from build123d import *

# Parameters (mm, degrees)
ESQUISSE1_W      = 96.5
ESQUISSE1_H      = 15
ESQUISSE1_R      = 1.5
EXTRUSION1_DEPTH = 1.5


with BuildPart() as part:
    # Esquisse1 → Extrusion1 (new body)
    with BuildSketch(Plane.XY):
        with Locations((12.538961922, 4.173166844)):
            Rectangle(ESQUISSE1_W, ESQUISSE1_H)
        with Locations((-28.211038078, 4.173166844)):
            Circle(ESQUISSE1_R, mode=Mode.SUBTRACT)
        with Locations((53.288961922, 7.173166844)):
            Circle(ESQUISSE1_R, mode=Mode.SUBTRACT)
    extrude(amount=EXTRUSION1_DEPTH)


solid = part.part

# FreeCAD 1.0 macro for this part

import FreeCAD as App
import Part
import Sketcher

V = App.Vector
Q = App.Units.Quantity


def add_polygon(sketch, points):
    """Adds a closed chain of lines whose ends are joined by coincident constraints."""
    first, n = sketch.GeometryCount, len(points)
    for a, b in zip(points, points[1:] + points[:1]):
        sketch.addGeometry(Part.LineSegment(App.Vector(*a, 0), App.Vector(*b, 0)), False)
    for i in range(n):
        sketch.addConstraint(Sketcher.Constraint("Coincident", first + i, 2, first + (i + 1) % n, 1))

doc = App.newDocument("Part")
body = doc.addObject("PartDesign::Body", "Body")

# Sketch on XY plane
sketch1 = body.newObject("Sketcher::SketchObject", "Sketch")
sketch1.AttachmentSupport = (doc.getObject("XY_Plane"), [""])
sketch1.MapMode = "FlatFace"
add_polygon(sketch1, [(-35.7, 11.7), (-35.7, -3.3), (60.8, -3.3), (60.8, 11.7)])  # lines 0-3
sketch1.addGeometry(Part.Circle(V(-28.2, 4.2, 0), V(0, 0, 1), 1.5), False)  # 4
sketch1.addGeometry(Part.Circle(V(53.3, 7.2, 0), V(0, 0, 1), 1.5), False)  # 5
sketch1.addConstraint([
    Sketcher.Constraint("Vertical", 0),
    Sketcher.Constraint("Horizontal", 1),
    Sketcher.Constraint("Vertical", 2),
    Sketcher.Constraint("Horizontal", 3),
    Sketcher.Constraint("Equal", 4, 5),
    Sketcher.Constraint("Diameter", 4, Q("3 mm")),
    Sketcher.Constraint("DistanceY", 0, 2, 0, 1, Q("15 mm")),
    Sketcher.Constraint("DistanceX", 1, 1, 1, 2, Q("96.5 mm")),
    Sketcher.Constraint("DistanceY", 4, 3, 5, 3, Q("3 mm")),
    Sketcher.Constraint("DistanceX", 0, 2, 5, 3, Q("89 mm")),
    Sketcher.Constraint("DistanceX", 4, 3, 1, 2, Q("89 mm")),
    Sketcher.Constraint("DistanceY", 0, 2, 4, 3, Q("7.5 mm")),
    Sketcher.Constraint("DistanceX", 4, 3, -1, 1, Q("28.211038 mm")),
    Sketcher.Constraint("DistanceY", -1, 1, 4, 3, Q("4.173167 mm")),
])
pad1 = body.newObject("PartDesign::Pad", "Pad")
pad1.Profile = sketch1
pad1.Length = 1.5

doc.recompute()
